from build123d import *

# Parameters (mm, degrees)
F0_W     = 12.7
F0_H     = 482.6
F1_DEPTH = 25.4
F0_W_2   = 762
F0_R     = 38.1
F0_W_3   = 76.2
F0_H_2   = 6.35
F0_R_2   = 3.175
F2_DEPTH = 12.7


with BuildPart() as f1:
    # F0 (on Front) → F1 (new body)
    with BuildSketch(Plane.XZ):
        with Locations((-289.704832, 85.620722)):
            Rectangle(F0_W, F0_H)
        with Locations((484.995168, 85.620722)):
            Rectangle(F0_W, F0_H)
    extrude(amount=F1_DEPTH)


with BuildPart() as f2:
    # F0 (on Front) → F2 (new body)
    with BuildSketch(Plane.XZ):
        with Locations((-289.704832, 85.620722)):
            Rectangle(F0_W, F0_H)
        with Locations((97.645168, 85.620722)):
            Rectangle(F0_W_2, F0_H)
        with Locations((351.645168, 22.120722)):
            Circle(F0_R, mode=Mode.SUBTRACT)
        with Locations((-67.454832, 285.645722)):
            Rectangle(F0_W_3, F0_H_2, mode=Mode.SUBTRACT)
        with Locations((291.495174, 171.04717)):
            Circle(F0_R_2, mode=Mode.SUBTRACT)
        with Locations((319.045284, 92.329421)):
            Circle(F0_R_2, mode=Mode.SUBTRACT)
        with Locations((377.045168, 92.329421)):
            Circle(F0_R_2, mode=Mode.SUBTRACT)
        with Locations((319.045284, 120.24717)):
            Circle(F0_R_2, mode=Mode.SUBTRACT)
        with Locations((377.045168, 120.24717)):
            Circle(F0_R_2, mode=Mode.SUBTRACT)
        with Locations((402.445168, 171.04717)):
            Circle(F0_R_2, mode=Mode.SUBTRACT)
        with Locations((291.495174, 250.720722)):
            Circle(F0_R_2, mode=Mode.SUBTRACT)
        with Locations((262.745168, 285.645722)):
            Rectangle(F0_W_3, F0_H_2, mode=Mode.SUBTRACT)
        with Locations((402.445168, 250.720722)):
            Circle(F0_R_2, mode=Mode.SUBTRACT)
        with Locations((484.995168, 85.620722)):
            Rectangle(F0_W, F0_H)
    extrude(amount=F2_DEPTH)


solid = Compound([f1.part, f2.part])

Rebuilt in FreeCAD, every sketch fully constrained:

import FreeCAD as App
import Part
import Sketcher

V = App.Vector
Q = App.Units.Quantity


def add_polygon(sketch, points):
    """Adds a closed chain of lines whose ends are joined by coincident constraints."""
    first, n = sketch.GeometryCount, len(points)
    for a, b in zip(points, points[1:] + points[:1]):
        sketch.addGeometry(Part.LineSegment(App.Vector(*a, 0), App.Vector(*b, 0)), False)
    for i in range(n):
        sketch.addConstraint(Sketcher.Constraint("Coincident", first + i, 2, first + (i + 1) % n, 1))

doc = App.newDocument("Part")
params = doc.addObject("Spreadsheet::Sheet", "Params")
for row, (alias, value) in enumerate([
    ("sketch1_height", "19 in"),
    ("sketch1_width", "0.5 in"),
    ("pad1_length", "1 in"),
    ("sketch2_diameter", "3 in"),
    ("sketch2_diameter2", "0.25 in"),
    ("sketch2_width", "31 in"),
    ("sketch2_width2", "3 in"),
    ("sketch2_height", "19 in"),
    ("pad2_length", "0.5 in"),
], start=1):
    params.set(f"A{row}", alias)
    params.set(f"B{row}", "=" + value)
    params.setAlias(f"B{row}", alias)

body = doc.addObject("PartDesign::Body", "Body")
body.AllowCompound = True

# Sketch on XZ plane
sketch1 = body.newObject("Sketcher::SketchObject", "Sketch")
sketch1.AttachmentSupport = (doc.getObject("XZ_Plane"), [""])
sketch1.MapMode = "FlatFace"
add_polygon(sketch1, [(-296.054832, 326.920722), (-296.054832, -155.679278), (-283.354832, -155.679278), (-283.354832, 326.920722)])  # lines 0-3
add_polygon(sketch1, [(478.645168, 326.920722), (478.645168, -155.679278), (491.345168, -155.679278), (491.345168, 326.920722)])  # lines 4-7
sketch1.addConstraint(Sketcher.Constraint("Vertical", 0))
sketch1.addConstraint(Sketcher.Constraint("Horizontal", 1))
sketch1.addConstraint(Sketcher.Constraint("Vertical", 2))
sketch1.addConstraint(Sketcher.Constraint("Horizontal", 3))
sketch1.addConstraint(Sketcher.Constraint("Vertical", 4))
sketch1.addConstraint(Sketcher.Constraint("Horizontal", 5))
sketch1.addConstraint(Sketcher.Constraint("Vertical", 6))
sketch1.addConstraint(Sketcher.Constraint("Horizontal", 7))
sketch1.addConstraint(Sketcher.Constraint("Horizontal", 1, 2, 4, 2))
sketch1.addConstraint(Sketcher.Constraint("Horizontal", 3, 2, 6, 2))
sketch1.addConstraint(Sketcher.Constraint("Equal", 3, 5))
sketch1.addConstraint(Sketcher.Constraint("DistanceY", 0, 2, 0, 1, Q("19 in")))
sketch1.addConstraint(Sketcher.Constraint("DistanceX", 1, 1, 1, 2, Q("0.5 in")))
sketch1.addConstraint(Sketcher.Constraint("DistanceX", 1, 2, 4, 2, Q("30 in")))
sketch1.addConstraint(Sketcher.Constraint("DistanceX", 0, 2, -1, 1, 296.054832))
sketch1.addConstraint(Sketcher.Constraint("DistanceY", 0, 2, -1, 1, 155.679278))
sketch1.setExpression("Constraints[19]", "Params.sketch1_height")
sketch1.setExpression("Constraints[20]", "Params.sketch1_width")
pad1 = body.newObject("PartDesign::Pad", "Pad")
pad1.Profile = sketch1
pad1.setExpression("Length", "Params.pad1_length")
body2 = doc.addObject("PartDesign::Body", "Body001")

# Sketch on XZ plane
sketch2 = body2.newObject("Sketcher::SketchObject", "Sketch001")
sketch2.AttachmentSupport = (doc.getObject("XZ_Plane001"), [""])
sketch2.MapMode = "FlatFace"
add_polygon(sketch2, [(-296.054832, 326.920722), (-296.054832, -155.679278), (491.345168, -155.679278), (491.345168, 326.920722)])  # lines 0-3
sketch2.addGeometry(Part.Circle(V(351.645168, 22.120722, 0), V(0, 0, 1), 38.1), False)  # 4
sketch2.addGeometry(Part.Circle(V(319.045284, 92.329421, 0), V(0, 0, 1), 3.175), False)  # 5
sketch2.addGeometry(Part.Circle(V(377.045168, 92.329421, 0), V(0, 0, 1), 3.175), False)  # 6
sketch2.addGeometry(Part.Circle(V(319.045284, 120.24717, 0), V(0, 0, 1), 3.175), False)  # 7
sketch2.addGeometry(Part.Circle(V(377.045168, 120.24717, 0), V(0, 0, 1), 3.175), False)  # 8
add_polygon(sketch2, [(-29.354832, 282.470722), (-105.554832, 282.470722), (-105.554832, 288.820722), (-29.354832, 288.820722)])  # lines 9-12
sketch2.addGeometry(Part.Circle(V(291.495174, 171.04717, 0), V(0, 0, 1), 3.175), False)  # 13
sketch2.addGeometry(Part.Circle(V(402.445168, 171.04717, 0), V(0, 0, 1), 3.175), False)  # 14
add_polygon(sketch2, [(300.845168, 282.470722), (224.645168, 282.470722), (224.645168, 288.820722), (300.845168, 288.820722)])  # lines 15-18
sketch2.addGeometry(Part.Circle(V(291.495174, 250.720722, 0), V(0, 0, 1), 3.175), False)  # 19
sketch2.addGeometry(Part.Circle(V(402.445168, 250.720722, 0), V(0, 0, 1), 3.175), False)  # 20
sketch2.addConstraint(Sketcher.Constraint("Vertical", 0))
sketch2.addConstraint(Sketcher.Constraint("Horizontal", 1))
sketch2.addConstraint(Sketcher.Constraint("Vertical", 2))
sketch2.addConstraint(Sketcher.Constraint("Horizontal", 3))
sketch2.addConstraint(Sketcher.Constraint("Horizontal", 9))
sketch2.addConstraint(Sketcher.Constraint("Vertical", 10))
sketch2.addConstraint(Sketcher.Constraint("Horizontal", 11))
sketch2.addConstraint(Sketcher.Constraint("Vertical", 12))
sketch2.addConstraint(Sketcher.Constraint("Horizontal", 15))
sketch2.addConstraint(Sketcher.Constraint("Vertical", 16))
sketch2.addConstraint(Sketcher.Constraint("Horizontal", 17))
sketch2.addConstraint(Sketcher.Constraint("Vertical", 18))
sketch2.addConstraint(Sketcher.Constraint("Equal", 5, 6))
sketch2.addConstraint(Sketcher.Constraint("Equal", 6, 7))
sketch2.addConstraint(Sketcher.Constraint("Equal", 7, 8))
sketch2.addConstraint(Sketcher.Constraint("Equal", 8, 13))
sketch2.addConstraint(Sketcher.Constraint("Equal", 13, 14))
sketch2.addConstraint(Sketcher.Constraint("Equal", 14, 19))
sketch2.addConstraint(Sketcher.Constraint("Equal", 19, 20))
sketch2.addConstraint(Sketcher.Constraint("Horizontal", 5, 3, 6, 3))
sketch2.addConstraint(Sketcher.Constraint("Horizontal", 7, 3, 8, 3))
sketch2.addConstraint(Sketcher.Constraint("Horizontal", 13, 3, 14, 3))
sketch2.addConstraint(Sketcher.Constraint("Horizontal", 19, 3, 20, 3))
sketch2.addConstraint(Sketcher.Constraint("Horizontal", 12, 2, 15, 2))
sketch2.addConstraint(Sketcher.Constraint("Horizontal", 11, 2, 16, 2))
sketch2.addConstraint(Sketcher.Constraint("Vertical", 5, 3, 7, 3))
sketch2.addConstraint(Sketcher.Constraint("Vertical", 6, 3, 8, 3))
sketch2.addConstraint(Sketcher.Constraint("Vertical", 13, 3, 19, 3))
sketch2.addConstraint(Sketcher.Constraint("Vertical", 14, 3, 20, 3))
sketch2.addConstraint(Sketcher.Constraint("Equal", 11, 15))
sketch2.addConstraint(Sketcher.Constraint("Diameter", 4, Q("3 in")))
sketch2.addConstraint(Sketcher.Constraint("Diameter", 5, Q("0.25 in")))
sketch2.addConstraint(Sketcher.Constraint("DistanceX", 1, 1, 1, 2, Q("31 in")))
sketch2.addConstraint(Sketcher.Constraint("DistanceX", 9, 2, 9, 1, Q("3 in")))
sketch2.addConstraint(Sketcher.Constraint("DistanceY", 0, 2, 0, 1, Q("19 in")))
sketch2.addConstraint(Sketcher.Constraint("DistanceX", 4, 3, 6, 3, Q("1 in")))
sketch2.addConstraint(Sketcher.Constraint("DistanceY", 7, 3, 13, 3, Q("2 in")))
sketch2.addConstraint(Sketcher.Constraint("DistanceX", 8, 3, 14, 3, Q("1 in")))
sketch2.addConstraint(Sketcher.Constraint("DistanceY", 0, 2, 4, 3, Q("7 in")))
sketch2.addConstraint(Sketcher.Constraint("DistanceY", 0, 2, 19, 3, Q("16 in")))
sketch2.addConstraint(Sketcher.Constraint("DistanceX", 15, 2, 20, 3, Q("7 in")))
sketch2.addConstraint(Sketcher.Constraint("DistanceY", 10, 1, 10, 2, Q("0.25 in")))
sketch2.addConstraint(Sketcher.Constraint("DistanceX", 0, 2, 4, 3, Q("25.5 in")))
sketch2.addConstraint(Sketcher.Constraint("DistanceX", 3, 2, 9, 2, Q("7.5 in")))
sketch2.addConstraint(Sketcher.Constraint("DistanceY", 10, 2, 3, 2, Q("1.5 in")))
sketch2.addConstraint(Sketcher.Constraint("DistanceY", 4, 3, 5, 3, 70.208699))
sketch2.addConstraint(Sketcher.Constraint("DistanceX", -1, 1, 4, 3, 351.645168))
sketch2.addConstraint(Sketcher.Constraint("DistanceY", -1, 1, 5, 3, 92.329421))
sketch2.addConstraint(Sketcher.Constraint("DistanceY", -1, 1, 7, 3, 120.24717))
sketch2.addConstraint(Sketcher.Constraint("DistanceX", 13, 3, 7, 3, 27.55011))
sketch2.addConstraint(Sketcher.Constraint("DistanceX", -1, 1, 5, 3, 319.045284))
sketch2.setExpression("Constraints[42]", "Params.sketch2_diameter")
sketch2.setExpression("Constraints[43]", "Params.sketch2_diameter2")
sketch2.setExpression("Constraints[44]", "Params.sketch2_width")
sketch2.setExpression("Constraints[45]", "Params.sketch2_width2")
sketch2.setExpression("Constraints[46]", "Params.sketch2_height")
pad2 = body2.newObject("PartDesign::Pad", "Pad001")
pad2.Profile = sketch2
pad2.setExpression("Length", "Params.pad2_length")

doc.recompute()
